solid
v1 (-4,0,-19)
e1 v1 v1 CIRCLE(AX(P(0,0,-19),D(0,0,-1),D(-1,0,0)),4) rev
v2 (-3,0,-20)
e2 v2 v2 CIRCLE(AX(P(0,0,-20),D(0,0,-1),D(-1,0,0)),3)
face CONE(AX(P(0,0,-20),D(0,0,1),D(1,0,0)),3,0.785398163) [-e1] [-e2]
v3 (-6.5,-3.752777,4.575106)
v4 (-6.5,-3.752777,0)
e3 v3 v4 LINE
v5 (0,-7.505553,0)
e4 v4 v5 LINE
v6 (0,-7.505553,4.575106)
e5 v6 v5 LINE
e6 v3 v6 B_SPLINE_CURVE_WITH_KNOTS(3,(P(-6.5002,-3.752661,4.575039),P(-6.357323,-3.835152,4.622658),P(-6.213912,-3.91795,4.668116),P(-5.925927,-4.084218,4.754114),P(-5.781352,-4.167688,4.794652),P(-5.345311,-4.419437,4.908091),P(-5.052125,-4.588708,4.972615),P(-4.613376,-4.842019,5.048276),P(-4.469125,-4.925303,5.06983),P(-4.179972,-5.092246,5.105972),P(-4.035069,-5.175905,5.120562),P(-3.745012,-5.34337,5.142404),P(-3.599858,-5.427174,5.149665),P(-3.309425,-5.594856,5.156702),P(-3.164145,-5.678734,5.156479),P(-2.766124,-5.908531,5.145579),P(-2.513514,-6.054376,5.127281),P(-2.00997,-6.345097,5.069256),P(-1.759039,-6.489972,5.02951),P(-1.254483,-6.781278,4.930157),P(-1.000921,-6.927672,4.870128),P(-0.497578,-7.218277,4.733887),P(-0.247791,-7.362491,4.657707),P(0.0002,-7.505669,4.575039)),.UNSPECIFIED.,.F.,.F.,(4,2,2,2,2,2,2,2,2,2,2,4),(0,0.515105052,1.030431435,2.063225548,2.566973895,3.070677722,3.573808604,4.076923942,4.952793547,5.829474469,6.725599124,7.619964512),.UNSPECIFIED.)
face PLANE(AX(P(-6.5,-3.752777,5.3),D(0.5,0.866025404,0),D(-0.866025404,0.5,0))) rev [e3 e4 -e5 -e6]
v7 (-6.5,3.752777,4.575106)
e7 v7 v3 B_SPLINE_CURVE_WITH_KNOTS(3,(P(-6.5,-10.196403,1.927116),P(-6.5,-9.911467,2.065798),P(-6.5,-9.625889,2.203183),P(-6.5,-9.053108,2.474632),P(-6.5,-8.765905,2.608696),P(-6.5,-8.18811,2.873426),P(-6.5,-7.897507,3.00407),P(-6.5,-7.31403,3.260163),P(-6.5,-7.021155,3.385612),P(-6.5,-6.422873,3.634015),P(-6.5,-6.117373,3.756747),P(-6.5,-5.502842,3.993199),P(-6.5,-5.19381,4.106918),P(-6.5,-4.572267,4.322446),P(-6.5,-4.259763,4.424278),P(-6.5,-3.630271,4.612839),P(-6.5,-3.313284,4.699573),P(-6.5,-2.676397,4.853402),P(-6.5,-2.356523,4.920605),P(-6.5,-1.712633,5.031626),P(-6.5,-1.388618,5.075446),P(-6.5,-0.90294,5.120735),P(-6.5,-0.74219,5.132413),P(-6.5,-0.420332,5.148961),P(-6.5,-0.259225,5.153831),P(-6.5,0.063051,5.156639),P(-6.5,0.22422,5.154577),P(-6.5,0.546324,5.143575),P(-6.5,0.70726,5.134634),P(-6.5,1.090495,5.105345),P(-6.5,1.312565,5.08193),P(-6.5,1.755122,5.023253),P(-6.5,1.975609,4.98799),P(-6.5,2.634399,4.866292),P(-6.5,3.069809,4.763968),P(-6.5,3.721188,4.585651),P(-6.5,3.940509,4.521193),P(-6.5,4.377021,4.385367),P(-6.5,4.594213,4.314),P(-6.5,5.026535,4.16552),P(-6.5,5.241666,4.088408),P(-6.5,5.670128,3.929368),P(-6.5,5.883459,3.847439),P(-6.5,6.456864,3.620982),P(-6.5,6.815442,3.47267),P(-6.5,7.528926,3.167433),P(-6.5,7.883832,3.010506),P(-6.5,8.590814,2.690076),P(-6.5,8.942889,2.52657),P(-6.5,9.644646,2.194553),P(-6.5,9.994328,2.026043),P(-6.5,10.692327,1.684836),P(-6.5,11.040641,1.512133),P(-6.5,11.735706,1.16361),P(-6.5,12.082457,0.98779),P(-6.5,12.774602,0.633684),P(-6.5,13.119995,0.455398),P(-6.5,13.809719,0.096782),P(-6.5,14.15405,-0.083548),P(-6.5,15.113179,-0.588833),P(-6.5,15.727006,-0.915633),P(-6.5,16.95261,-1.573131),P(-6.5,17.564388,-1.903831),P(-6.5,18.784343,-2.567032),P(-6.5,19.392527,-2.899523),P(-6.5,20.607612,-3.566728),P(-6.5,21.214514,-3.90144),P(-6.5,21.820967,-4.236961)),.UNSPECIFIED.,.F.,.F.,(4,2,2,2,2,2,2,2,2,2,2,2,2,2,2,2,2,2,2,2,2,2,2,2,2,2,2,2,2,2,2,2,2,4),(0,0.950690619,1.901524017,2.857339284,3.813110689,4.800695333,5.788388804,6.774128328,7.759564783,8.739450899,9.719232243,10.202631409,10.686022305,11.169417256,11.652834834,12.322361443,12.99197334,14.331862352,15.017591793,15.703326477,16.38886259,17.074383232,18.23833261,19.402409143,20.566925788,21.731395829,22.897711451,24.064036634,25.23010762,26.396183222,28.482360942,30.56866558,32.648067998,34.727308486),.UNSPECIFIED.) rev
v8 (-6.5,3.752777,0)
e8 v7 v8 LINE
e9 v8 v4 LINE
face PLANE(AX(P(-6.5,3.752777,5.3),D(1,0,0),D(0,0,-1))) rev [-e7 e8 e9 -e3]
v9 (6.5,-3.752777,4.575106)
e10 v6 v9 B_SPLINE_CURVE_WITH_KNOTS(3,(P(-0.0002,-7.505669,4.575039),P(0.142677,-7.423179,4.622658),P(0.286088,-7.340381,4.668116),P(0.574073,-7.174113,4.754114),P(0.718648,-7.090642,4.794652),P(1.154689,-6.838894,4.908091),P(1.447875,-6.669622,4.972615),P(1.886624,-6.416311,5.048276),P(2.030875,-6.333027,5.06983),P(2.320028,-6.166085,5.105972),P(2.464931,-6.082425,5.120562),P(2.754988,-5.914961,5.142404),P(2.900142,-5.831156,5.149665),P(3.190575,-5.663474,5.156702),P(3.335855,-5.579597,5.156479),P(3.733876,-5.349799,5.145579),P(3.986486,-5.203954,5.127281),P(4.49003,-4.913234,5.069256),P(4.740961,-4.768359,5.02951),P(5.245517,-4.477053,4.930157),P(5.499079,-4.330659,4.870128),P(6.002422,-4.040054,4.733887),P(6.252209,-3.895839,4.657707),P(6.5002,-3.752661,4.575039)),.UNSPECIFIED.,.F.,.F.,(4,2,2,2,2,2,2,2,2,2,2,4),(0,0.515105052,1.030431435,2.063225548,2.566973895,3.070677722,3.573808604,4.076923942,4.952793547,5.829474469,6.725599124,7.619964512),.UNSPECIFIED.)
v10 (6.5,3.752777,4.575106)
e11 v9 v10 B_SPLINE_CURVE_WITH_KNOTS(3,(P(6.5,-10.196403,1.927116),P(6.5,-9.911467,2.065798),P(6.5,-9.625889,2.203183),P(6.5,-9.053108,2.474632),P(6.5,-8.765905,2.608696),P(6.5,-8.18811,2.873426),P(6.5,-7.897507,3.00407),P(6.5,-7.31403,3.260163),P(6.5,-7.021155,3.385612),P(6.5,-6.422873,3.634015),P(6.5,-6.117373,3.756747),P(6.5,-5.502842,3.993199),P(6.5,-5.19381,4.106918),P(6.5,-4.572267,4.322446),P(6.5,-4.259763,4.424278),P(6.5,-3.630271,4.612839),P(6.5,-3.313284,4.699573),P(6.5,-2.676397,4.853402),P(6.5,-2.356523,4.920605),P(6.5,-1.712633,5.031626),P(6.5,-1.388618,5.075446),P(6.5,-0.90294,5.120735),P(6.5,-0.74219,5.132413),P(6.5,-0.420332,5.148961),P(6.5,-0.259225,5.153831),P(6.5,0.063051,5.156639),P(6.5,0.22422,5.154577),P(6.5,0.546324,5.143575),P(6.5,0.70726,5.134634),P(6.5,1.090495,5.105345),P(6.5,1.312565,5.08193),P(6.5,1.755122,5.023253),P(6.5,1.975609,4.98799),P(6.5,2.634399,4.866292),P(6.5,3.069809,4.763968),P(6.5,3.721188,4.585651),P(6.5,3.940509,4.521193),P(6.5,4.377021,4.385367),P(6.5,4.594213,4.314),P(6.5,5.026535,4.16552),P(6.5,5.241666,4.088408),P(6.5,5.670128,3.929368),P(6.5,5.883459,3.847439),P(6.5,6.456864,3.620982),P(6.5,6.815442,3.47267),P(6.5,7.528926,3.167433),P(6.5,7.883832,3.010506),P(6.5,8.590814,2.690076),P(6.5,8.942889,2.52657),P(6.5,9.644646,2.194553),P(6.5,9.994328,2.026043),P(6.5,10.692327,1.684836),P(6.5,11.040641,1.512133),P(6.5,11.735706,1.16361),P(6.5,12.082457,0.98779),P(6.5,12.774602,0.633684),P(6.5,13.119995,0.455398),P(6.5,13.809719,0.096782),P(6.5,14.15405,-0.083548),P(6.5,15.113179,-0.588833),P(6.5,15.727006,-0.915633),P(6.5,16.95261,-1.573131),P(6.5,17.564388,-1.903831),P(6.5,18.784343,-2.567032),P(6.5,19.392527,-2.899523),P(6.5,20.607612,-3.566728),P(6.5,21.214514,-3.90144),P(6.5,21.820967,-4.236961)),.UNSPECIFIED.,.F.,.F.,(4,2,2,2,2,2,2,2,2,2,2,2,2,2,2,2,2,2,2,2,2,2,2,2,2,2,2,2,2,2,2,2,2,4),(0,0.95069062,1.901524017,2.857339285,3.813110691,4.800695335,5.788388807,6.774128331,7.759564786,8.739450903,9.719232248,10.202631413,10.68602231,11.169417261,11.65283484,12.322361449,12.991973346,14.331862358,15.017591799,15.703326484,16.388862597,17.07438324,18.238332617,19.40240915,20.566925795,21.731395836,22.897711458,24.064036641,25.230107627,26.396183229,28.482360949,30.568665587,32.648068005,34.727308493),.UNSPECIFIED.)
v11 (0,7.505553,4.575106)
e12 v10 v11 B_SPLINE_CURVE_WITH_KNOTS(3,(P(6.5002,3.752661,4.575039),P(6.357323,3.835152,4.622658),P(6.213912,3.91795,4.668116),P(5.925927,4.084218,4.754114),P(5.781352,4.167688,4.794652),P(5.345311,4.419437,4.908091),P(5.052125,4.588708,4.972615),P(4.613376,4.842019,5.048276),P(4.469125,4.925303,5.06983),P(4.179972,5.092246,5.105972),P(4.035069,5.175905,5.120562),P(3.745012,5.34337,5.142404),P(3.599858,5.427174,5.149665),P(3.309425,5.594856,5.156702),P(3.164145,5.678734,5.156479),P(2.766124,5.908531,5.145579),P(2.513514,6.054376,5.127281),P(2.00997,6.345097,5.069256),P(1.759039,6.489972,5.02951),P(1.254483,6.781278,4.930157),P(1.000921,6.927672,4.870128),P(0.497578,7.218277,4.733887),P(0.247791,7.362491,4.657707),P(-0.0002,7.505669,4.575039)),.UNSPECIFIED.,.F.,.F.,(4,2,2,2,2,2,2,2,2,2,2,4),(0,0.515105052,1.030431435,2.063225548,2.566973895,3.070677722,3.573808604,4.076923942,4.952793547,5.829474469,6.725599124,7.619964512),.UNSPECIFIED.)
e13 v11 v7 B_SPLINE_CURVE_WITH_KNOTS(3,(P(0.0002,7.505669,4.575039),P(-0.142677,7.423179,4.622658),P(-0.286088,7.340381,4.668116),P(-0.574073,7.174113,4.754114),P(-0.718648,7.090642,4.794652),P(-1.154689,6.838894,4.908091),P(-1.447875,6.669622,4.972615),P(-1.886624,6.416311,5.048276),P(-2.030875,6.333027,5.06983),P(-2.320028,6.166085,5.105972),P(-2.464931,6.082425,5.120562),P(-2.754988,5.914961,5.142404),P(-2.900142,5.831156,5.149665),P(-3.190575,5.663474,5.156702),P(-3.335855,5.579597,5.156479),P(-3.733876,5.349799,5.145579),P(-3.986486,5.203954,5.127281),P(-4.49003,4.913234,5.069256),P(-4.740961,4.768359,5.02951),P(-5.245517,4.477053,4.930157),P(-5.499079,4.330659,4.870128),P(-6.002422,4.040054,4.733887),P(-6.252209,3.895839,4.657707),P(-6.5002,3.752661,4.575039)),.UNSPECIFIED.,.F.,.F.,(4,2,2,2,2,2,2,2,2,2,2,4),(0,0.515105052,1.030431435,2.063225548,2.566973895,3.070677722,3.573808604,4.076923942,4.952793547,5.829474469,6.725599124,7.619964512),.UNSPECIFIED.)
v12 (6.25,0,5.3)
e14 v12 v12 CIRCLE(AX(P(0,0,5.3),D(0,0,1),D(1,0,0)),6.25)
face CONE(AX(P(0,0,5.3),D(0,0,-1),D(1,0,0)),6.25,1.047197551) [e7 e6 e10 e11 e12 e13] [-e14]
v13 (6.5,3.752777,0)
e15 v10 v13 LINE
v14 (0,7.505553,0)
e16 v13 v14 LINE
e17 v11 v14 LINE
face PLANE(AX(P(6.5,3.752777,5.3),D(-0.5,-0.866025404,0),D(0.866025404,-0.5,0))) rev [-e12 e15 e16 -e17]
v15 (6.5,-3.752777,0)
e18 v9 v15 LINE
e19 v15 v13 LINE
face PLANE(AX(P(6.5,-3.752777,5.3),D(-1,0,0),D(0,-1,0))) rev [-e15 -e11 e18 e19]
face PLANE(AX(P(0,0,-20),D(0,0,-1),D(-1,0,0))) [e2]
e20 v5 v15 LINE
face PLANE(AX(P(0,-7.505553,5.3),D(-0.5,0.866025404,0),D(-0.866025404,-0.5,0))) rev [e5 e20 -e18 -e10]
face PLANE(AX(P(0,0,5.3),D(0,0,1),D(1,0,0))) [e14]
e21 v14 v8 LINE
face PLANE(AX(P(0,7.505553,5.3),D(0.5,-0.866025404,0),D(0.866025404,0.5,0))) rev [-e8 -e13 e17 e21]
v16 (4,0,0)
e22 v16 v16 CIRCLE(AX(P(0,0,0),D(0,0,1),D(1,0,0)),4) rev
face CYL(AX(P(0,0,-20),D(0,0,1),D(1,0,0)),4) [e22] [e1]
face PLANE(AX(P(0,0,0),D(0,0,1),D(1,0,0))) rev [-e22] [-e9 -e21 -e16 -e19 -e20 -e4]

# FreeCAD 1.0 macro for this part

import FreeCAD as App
import Part
import Sketcher
Q = App.Units.Quantity


def edges_at(feature, points):
    """Names of the edges that pass closest to the given points."""
    edges = feature.Shape.Edges
    near = lambda p: min(range(len(edges)), key=lambda i: edges[i].distToShape(Part.Vertex(*p))[0])
    return sorted({f"Edge{near(p) + 1}" for p in points})


def faces_at(feature, points):
    """Names of the faces that lie closest to the given points."""
    faces = feature.Shape.Faces
    near = lambda p: min(range(len(faces)), key=lambda i: faces[i].distToShape(Part.Vertex(*p))[0])
    return sorted({f"Face{near(p) + 1}" for p in points})

doc = App.newDocument("Part")
params = doc.addObject("Spreadsheet::Sheet", "Params")
for row, (alias, value) in enumerate([
    ("pad1_length", "5.3 mm"),
    ("sketch2_diameter", "12.5 mm"),
    ("pad2_length", "12.254925 mm"),
    ("draft_angle", "60 deg"),
    ("sketch3_diameter", "8 mm"),
    ("pad3_length", "20 mm"),
    ("chamfer_size", "1 mm"),
], start=1):
    params.set(f"A{row}", alias)
    params.set(f"B{row}", "=" + value)
    params.setAlias(f"B{row}", alias)

body = doc.addObject("PartDesign::Body", "Body")

sketch1 = body.newObject("Sketcher::SketchObject", "Sketch")
sketch1.AttachmentSupport = (doc.getObject("XY_Plane"), [""])
sketch1.MapMode = "FlatFace"
sketch1.addGeometry([
    Part.LineSegment(App.Vector(0, 7.505553, 0), App.Vector(-6.5, 3.752777, 0)),
    Part.LineSegment(App.Vector(-6.5, 3.752777, 0), App.Vector(-6.5, -3.752777, 0)),
    Part.LineSegment(App.Vector(-6.5, -3.752777, 0), App.Vector(0, -7.505553, 0)),
    Part.LineSegment(App.Vector(0, -7.505553, 0), App.Vector(6.5, -3.752777, 0)),
    Part.LineSegment(App.Vector(6.5, -3.752777, 0), App.Vector(6.5, 3.752777, 0)),
    Part.LineSegment(App.Vector(6.5, 3.752777, 0), App.Vector(0, 7.505553, 0)),
], False)
sketch1.addConstraint([
    Sketcher.Constraint("Coincident", 0, 2, 1, 1),
    Sketcher.Constraint("Coincident", 1, 2, 2, 1),
    Sketcher.Constraint("Coincident", 2, 2, 3, 1),
    Sketcher.Constraint("Coincident", 3, 2, 4, 1),
    Sketcher.Constraint("Coincident", 4, 2, 5, 1),
    Sketcher.Constraint("Coincident", 5, 2, 0, 1),
    Sketcher.Constraint("Vertical", 1),
    Sketcher.Constraint("Vertical", 4),
    Sketcher.Constraint("Symmetric", 0, 2, 3, 2, -1, 1),
    Sketcher.Constraint("Symmetric", 2, 2, 5, 2, -1, 1),
    Sketcher.Constraint("PointOnObject", 2, 2, -2),
    Sketcher.Constraint("Parallel", 2, 5),
    Sketcher.Constraint("Horizontal", 1, 2, 3, 2),
    Sketcher.Constraint("Angle", 0, Q("-150 deg")),
    Sketcher.Constraint("DistanceX", 1, 2, 3, 2, Q("13 mm")),
    Sketcher.Constraint("DistanceY", 1, 2, 1, 1, Q("7.505554 mm")),
])
pad1 = body.newObject("PartDesign::Pad", "Pad")
pad1.Profile = sketch1
pad1.setExpression("Length", "Params.pad1_length")
body2 = doc.addObject("PartDesign::Body", "Body001")

sketch2 = body2.newObject("Sketcher::SketchObject", "Sketch001")
sketch2.AttachmentSupport = (doc.getObject("XY_Plane001"), [""])
sketch2.MapMode = "FlatFace"
sketch2.AttachmentOffset = App.Placement(App.Vector(0, 0, 5.3), App.Rotation())
sketch2.addGeometry([
    Part.LineSegment(App.Vector(-30.781, 31.787, 0), App.Vector(-30.781, -31.787, 0)),
    Part.LineSegment(App.Vector(-30.781, -31.787, 0), App.Vector(30.781, -31.787, 0)),
    Part.LineSegment(App.Vector(30.781, -31.787, 0), App.Vector(30.781, 31.787, 0)),
    Part.LineSegment(App.Vector(30.781, 31.787, 0), App.Vector(-30.781, 31.787, 0)),
    Part.Circle(App.Vector(0, 0, 0), App.Vector(0, 0, 1), 6.25),
], False)
sketch2.addConstraint([
    Sketcher.Constraint("Coincident", 0, 2, 1, 1),
    Sketcher.Constraint("Coincident", 1, 2, 2, 1),
    Sketcher.Constraint("Coincident", 2, 2, 3, 1),
    Sketcher.Constraint("Coincident", 3, 2, 0, 1),
    Sketcher.Constraint("Vertical", 0),
    Sketcher.Constraint("Horizontal", 1),
    Sketcher.Constraint("Vertical", 2),
    Sketcher.Constraint("Horizontal", 3),
    Sketcher.Constraint("Coincident", 4, 3, -1, 1),
    Sketcher.Constraint("Symmetric", 0, 2, 2, 2, -1, 1),
    Sketcher.Constraint("Diameter", 4, Q("12.5 mm")),
    Sketcher.Constraint("DistanceX", 1, 1, 1, 2, Q("61.562 mm")),
    Sketcher.Constraint("DistanceY", 0, 2, 0, 1, Q("63.574 mm")),
])
sketch2.setExpression("Constraints[10]", "Params.sketch2_diameter")
pad2 = body2.newObject("PartDesign::Pad", "Pad001")
pad2.Profile = sketch2
pad2.setExpression("Length", "Params.pad2_length")
pad2.Reversed = True
doc.recompute()

datumplane = body2.newObject("PartDesign::Plane", "DatumPlane")
datumplane.AttachmentSupport = (doc.getObject("XY_Plane001"), [""])
datumplane.MapMode = "FlatFace"
datumplane.AttachmentOffset = App.Placement(App.Vector(0, 0, 5.3), App.Rotation())
draft = body2.newObject("PartDesign::Draft", "Draft")
draft.Base = (pad2, faces_at(pad2, [
    (0, -31.787, -0.827),
    (30.781, 0, -0.827),
    (0, 31.787, -0.827),
    (-30.781, 0, -0.827),
    (-6.25, 0, -0.827),
]))
draft.NeutralPlane = (datumplane, [""])
draft.setExpression("Angle", "Params.draft_angle")
draft.Reversed = True
doc.recompute()

boolean = body.newObject("PartDesign::Boolean", "Boolean")
boolean.Type = "Cut"
boolean.addObjects([body2])

sketch3 = body.newObject("Sketcher::SketchObject", "Sketch002")
sketch3.AttachmentSupport = (doc.getObject("XY_Plane"), [""])
sketch3.MapMode = "FlatFace"
sketch3.addGeometry(Part.Circle(App.Vector(0, 0, 0), App.Vector(0, 0, 1), 4), False)
sketch3.addConstraint([
    Sketcher.Constraint("Coincident", 0, 3, -1, 1),
    Sketcher.Constraint("Diameter", 0, Q("8 mm")),
])
sketch3.setExpression("Constraints[1]", "Params.sketch3_diameter")
pad3 = body.newObject("PartDesign::Pad", "Pad002")
pad3.Profile = sketch3
pad3.setExpression("Length", "Params.pad3_length")
pad3.Reversed = True
doc.recompute()

chamfer = body.newObject("PartDesign::Chamfer", "Chamfer")
chamfer.Base = (pad3, edges_at(pad3, [(-4, 0, -20)]))
chamfer.setExpression("Size", "Params.chamfer_size")

doc.recompute()
